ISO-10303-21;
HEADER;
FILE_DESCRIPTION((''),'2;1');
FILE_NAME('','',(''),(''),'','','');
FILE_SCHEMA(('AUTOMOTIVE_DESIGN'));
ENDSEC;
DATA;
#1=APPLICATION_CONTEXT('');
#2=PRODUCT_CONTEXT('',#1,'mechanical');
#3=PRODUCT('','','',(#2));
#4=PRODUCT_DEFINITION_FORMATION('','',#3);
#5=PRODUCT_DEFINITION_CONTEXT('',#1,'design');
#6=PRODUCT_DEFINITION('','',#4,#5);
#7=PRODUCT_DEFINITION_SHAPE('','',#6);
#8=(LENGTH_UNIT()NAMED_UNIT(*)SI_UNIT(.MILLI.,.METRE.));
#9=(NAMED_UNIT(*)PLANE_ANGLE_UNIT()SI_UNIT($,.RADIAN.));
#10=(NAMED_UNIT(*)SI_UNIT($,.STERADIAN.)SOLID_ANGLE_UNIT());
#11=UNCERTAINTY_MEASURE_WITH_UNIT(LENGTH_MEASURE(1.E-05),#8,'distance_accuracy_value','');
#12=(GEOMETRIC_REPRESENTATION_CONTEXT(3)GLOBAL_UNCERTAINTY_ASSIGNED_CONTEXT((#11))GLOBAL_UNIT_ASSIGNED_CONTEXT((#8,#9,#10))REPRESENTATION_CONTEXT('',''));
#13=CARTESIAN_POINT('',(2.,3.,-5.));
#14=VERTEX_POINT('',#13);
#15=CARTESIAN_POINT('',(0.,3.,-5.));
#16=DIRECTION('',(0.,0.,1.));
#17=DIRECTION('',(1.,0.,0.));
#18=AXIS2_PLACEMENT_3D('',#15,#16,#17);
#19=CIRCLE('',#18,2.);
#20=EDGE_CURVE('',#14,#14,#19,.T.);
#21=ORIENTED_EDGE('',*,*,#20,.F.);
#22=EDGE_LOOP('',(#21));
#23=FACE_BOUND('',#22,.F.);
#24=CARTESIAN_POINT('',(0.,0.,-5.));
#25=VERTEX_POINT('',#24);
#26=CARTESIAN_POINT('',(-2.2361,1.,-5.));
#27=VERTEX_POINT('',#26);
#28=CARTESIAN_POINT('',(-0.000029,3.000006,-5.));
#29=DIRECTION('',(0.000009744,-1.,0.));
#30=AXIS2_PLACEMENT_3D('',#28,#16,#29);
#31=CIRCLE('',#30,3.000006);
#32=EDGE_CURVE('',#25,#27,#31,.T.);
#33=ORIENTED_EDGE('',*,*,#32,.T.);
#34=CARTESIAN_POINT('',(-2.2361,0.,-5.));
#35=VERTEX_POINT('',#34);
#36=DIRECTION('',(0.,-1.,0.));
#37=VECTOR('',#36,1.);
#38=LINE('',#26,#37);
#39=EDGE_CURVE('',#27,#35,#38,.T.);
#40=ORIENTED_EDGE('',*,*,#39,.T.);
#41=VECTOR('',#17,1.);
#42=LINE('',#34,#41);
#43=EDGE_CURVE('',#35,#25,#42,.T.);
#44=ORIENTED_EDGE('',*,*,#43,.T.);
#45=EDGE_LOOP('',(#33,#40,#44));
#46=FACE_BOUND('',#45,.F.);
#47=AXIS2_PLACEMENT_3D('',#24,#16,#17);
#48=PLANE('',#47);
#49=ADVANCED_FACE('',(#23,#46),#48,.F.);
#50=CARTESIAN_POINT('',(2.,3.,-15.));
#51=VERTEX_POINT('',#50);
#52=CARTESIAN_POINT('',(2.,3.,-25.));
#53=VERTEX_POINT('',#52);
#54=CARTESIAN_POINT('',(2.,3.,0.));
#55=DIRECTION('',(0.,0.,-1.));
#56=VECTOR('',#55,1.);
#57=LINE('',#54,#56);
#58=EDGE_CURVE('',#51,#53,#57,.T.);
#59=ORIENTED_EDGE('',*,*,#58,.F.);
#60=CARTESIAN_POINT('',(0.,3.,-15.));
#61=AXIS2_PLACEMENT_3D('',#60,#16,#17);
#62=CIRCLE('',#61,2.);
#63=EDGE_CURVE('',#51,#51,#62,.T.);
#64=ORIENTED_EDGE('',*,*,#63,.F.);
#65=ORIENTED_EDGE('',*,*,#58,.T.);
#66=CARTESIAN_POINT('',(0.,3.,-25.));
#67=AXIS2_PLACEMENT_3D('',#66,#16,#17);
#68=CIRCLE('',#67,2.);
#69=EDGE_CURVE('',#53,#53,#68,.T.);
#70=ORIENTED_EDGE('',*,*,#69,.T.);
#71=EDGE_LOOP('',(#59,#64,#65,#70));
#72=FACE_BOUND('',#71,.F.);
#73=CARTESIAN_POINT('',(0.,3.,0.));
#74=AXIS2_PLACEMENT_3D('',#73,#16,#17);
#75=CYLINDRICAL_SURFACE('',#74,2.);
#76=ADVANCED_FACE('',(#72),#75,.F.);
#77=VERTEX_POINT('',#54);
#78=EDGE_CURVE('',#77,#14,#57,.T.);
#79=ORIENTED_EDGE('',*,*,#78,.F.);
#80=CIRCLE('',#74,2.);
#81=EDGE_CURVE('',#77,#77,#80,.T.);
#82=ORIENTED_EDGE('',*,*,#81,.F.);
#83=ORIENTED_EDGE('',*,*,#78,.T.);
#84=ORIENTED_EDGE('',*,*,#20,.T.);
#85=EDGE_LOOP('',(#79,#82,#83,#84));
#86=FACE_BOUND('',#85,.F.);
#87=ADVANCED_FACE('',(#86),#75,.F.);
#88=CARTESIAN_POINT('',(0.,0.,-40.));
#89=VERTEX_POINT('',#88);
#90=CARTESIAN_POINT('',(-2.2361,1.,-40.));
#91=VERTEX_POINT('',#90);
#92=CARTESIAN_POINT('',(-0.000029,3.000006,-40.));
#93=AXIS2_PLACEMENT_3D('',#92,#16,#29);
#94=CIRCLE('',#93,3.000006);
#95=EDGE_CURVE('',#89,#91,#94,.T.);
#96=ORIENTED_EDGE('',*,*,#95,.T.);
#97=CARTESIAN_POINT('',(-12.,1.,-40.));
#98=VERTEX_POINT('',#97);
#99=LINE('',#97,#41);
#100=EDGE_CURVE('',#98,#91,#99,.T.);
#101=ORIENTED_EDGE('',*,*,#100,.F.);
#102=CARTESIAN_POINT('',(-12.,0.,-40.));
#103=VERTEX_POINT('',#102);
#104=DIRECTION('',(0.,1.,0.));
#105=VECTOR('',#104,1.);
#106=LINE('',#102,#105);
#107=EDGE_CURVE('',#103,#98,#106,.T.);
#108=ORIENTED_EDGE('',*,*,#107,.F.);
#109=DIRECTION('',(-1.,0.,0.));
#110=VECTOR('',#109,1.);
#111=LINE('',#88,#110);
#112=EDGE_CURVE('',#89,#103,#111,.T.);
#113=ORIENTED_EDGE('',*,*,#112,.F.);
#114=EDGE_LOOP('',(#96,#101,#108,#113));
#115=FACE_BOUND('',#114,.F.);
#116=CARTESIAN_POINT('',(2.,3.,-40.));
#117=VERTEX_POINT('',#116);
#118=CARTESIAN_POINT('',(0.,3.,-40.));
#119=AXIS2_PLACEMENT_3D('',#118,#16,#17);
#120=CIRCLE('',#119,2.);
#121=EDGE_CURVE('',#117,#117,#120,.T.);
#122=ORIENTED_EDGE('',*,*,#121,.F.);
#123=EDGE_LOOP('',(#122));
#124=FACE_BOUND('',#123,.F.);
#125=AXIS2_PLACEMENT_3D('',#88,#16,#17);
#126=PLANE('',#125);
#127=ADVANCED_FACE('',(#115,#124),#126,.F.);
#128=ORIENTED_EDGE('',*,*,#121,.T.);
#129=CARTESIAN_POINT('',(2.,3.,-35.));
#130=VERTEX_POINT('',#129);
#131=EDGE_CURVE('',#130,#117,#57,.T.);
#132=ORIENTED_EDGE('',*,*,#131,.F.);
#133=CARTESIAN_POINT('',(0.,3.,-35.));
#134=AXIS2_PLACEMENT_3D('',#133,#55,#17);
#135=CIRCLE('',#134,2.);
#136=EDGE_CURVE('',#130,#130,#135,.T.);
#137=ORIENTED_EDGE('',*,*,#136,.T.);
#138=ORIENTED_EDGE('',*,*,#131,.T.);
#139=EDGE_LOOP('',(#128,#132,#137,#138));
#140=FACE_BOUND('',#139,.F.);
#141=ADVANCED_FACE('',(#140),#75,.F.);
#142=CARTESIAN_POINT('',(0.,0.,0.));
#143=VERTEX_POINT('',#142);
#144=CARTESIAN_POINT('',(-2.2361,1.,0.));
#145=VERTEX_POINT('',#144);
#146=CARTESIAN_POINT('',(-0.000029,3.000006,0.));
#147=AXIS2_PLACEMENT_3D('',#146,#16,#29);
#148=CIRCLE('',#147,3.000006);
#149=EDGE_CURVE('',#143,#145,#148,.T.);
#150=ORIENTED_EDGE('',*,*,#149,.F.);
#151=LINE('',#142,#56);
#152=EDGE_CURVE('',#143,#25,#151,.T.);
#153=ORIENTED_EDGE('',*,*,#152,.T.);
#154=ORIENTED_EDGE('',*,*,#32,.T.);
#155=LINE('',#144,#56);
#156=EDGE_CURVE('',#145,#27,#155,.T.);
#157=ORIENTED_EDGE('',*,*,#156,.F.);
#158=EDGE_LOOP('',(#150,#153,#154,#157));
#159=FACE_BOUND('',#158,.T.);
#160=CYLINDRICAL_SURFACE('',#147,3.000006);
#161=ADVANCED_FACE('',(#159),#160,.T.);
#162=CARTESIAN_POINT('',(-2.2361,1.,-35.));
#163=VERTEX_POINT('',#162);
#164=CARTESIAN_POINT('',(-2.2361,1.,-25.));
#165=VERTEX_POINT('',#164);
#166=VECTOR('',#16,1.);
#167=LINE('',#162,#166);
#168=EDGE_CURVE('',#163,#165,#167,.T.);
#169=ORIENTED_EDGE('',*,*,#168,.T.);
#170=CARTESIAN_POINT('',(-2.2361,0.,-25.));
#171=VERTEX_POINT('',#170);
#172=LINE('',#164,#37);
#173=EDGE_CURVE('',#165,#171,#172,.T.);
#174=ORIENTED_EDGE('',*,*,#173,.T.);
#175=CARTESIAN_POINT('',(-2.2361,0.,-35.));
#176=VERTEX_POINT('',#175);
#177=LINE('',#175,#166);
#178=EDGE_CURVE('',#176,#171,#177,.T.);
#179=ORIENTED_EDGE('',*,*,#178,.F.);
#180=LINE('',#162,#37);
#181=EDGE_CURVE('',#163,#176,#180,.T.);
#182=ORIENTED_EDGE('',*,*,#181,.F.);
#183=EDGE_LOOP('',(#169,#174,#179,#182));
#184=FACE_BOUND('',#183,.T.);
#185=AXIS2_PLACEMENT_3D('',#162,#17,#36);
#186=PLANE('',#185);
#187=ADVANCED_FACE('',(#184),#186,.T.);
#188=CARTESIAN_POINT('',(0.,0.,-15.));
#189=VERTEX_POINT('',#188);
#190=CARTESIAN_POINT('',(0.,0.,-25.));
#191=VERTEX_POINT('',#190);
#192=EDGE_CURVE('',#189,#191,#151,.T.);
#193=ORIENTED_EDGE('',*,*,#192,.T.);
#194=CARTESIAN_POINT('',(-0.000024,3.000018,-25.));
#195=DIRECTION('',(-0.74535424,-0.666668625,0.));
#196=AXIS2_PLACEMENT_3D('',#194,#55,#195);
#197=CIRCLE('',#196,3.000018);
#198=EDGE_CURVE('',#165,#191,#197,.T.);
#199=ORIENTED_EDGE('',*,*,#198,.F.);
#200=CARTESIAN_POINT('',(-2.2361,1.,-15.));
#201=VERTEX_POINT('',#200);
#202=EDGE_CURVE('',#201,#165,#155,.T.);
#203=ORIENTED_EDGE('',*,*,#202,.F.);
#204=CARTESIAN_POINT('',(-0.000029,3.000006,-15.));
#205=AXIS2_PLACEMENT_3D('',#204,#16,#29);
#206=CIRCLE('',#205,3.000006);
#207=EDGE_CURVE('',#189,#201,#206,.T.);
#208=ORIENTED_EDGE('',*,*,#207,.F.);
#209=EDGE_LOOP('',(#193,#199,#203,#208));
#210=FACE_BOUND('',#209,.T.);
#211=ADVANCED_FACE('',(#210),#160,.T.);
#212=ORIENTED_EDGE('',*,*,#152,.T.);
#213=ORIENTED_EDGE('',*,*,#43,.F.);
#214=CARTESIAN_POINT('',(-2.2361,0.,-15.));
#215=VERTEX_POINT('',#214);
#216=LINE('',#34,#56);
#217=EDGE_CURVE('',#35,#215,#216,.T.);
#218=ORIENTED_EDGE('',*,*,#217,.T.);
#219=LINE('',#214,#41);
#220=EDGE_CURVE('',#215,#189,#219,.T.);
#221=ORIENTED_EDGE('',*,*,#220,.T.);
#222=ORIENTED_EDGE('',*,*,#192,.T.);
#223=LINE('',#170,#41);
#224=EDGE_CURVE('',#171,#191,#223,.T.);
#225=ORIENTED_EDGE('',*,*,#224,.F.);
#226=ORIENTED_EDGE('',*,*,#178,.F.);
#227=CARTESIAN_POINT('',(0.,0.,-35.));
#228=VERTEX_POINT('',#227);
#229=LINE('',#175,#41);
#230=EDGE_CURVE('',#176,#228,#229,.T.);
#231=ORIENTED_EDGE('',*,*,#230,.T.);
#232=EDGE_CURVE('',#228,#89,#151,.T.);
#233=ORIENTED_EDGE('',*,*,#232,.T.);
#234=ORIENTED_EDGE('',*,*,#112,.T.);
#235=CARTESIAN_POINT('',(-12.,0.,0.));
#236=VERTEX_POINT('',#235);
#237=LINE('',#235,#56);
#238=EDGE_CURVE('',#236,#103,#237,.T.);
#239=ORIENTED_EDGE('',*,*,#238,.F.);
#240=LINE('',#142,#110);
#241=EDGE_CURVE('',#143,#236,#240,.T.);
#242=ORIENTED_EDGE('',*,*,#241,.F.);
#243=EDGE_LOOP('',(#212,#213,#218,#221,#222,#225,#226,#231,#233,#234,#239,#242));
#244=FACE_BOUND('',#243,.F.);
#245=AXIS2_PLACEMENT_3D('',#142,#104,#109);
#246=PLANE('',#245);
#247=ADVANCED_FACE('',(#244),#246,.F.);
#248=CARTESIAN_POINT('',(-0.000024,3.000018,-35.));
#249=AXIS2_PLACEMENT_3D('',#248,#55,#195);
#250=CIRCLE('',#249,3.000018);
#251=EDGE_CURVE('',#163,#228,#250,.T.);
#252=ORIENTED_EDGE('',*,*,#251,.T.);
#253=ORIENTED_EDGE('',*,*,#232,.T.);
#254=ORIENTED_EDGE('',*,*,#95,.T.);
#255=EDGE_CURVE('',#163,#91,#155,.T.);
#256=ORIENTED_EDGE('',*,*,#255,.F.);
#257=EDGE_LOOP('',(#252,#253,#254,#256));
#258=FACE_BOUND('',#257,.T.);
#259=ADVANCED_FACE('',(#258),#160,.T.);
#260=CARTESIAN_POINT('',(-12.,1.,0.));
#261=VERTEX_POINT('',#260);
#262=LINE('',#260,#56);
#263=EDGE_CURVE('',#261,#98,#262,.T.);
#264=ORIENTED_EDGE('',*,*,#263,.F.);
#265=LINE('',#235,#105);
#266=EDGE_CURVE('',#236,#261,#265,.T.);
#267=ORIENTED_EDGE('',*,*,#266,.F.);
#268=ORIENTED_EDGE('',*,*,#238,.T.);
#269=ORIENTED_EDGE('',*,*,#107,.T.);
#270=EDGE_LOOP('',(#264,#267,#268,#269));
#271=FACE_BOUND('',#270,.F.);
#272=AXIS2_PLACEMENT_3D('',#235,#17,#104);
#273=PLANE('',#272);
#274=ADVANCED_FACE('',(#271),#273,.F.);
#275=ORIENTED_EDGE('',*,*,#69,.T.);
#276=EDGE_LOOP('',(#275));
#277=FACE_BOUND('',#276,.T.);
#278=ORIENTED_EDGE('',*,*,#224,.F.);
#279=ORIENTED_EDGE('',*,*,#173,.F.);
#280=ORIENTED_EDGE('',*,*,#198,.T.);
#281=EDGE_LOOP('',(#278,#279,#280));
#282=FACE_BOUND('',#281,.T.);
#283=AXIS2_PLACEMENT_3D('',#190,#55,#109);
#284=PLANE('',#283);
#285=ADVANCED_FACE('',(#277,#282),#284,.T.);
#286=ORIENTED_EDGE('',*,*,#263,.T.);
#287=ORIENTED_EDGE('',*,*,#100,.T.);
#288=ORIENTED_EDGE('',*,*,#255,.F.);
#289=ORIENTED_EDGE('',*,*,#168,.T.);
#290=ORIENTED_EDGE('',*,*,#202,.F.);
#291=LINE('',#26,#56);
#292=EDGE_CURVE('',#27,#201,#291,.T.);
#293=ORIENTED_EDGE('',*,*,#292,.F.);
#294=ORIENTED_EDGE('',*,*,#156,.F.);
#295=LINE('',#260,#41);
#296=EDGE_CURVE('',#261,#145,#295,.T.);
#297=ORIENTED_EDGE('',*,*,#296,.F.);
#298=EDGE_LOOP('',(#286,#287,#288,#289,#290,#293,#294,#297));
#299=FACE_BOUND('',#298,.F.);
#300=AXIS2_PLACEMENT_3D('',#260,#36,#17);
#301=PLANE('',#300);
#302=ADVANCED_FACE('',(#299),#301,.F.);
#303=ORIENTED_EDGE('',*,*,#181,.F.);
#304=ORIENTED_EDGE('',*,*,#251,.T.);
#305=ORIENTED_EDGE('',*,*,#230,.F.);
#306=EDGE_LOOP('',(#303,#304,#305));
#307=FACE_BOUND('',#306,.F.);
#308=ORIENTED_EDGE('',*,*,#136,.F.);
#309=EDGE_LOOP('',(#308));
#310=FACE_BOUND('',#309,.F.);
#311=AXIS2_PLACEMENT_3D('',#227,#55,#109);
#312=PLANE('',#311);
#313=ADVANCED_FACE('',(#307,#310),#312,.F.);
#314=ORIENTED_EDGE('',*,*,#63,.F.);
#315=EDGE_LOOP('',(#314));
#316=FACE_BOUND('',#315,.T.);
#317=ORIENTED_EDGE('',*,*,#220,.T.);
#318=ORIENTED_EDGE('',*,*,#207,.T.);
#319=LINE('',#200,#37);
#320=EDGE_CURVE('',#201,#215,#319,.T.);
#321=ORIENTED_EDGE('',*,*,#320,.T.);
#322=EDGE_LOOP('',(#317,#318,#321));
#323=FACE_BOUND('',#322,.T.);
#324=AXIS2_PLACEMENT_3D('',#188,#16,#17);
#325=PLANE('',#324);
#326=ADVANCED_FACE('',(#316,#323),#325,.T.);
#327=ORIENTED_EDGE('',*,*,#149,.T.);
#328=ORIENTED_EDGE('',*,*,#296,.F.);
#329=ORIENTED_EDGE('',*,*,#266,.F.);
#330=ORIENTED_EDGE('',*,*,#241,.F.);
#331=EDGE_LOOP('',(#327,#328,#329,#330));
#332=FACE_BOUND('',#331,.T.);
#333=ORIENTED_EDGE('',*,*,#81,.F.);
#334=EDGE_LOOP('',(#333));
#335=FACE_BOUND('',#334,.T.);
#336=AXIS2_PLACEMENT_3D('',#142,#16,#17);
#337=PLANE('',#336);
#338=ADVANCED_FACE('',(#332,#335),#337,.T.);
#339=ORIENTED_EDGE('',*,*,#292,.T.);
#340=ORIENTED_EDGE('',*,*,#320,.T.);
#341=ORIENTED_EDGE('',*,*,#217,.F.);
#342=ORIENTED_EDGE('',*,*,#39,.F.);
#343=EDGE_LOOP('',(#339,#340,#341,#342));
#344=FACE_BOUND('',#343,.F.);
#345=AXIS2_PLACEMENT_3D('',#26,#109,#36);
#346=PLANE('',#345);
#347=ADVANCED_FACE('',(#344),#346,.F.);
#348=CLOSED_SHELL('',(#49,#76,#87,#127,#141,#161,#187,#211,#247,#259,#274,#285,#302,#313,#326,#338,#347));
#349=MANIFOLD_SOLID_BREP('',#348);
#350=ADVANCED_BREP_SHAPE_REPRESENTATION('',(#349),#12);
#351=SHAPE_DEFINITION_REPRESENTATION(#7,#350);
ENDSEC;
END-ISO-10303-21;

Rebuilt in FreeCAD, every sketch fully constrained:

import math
import FreeCAD as App
import Part
import Sketcher

V = App.Vector

doc = App.newDocument("Part")
body = doc.addObject("PartDesign::Body", "Body")

# Sketch on XY plane
sketch1 = body.newObject("Sketcher::SketchObject", "Sketch")
sketch1.AttachmentSupport = (doc.getObject("XY_Plane"), [""])
sketch1.MapMode = "FlatFace"
sketch1.addGeometry([
    Part.LineSegment(V(-12, 0, 0), V(0, 0, 0)),  # 0
    Part.ArcOfCircle(Part.Circle(V(0, 3, 0), V(0, 0, 1), 3), math.radians(-90), math.radians(222)),  # 1
    Part.LineSegment(V(-2.2, 1, 0), V(-12, 1, 0)),  # 2
    Part.LineSegment(V(-12, 1, 0), V(-12, 0, 0)),  # 3
    Part.Circle(V(0, 3, 0), V(0, 0, 1), 2),  # 4
], False)
sketch1.addConstraint([
    Sketcher.Constraint("Tangent", 0, 2, 1, 1),
    Sketcher.Constraint("Coincident", 1, 2, 2, 1),
    Sketcher.Constraint("Coincident", 2, 2, 3, 1),
    Sketcher.Constraint("Coincident", 3, 2, 0, 1),
    Sketcher.Constraint("Horizontal", 0),
    Sketcher.Constraint("Horizontal", 2),
    Sketcher.Constraint("Vertical", 3),
    Sketcher.Constraint("Coincident", 0, 2, -1, 1),
    Sketcher.Constraint("Coincident", 4, 3, 1, 3),
    Sketcher.Constraint("Diameter", 4, 4.0),
    Sketcher.Constraint("Radius", 1, 3.0),
    Sketcher.Constraint("DistanceX", 0, 1, 0, 2, 12.0),
    Sketcher.Constraint("DistanceY", 3, 2, 3, 1, 1.0),
])
pad1 = body.newObject("PartDesign::Pad", "Pad")
pad1.Profile = sketch1
pad1.Length = 40
pad1.Reversed = True

# Sketch on XY plane
sketch2 = body.newObject("Sketcher::SketchObject", "Sketch001")
sketch2.AttachmentSupport = (doc.getObject("XY_Plane"), [""])
sketch2.MapMode = "FlatFace"
sketch2.AttachmentOffset = App.Placement(V(0, 0, -5), App.Rotation())
sketch2.addGeometry([
    Part.LineSegment(V(-2.2, 0, 0), V(0, 0, 0)),
    Part.ArcOfCircle(Part.Circle(V(0, 3, 0), V(0, 0, 1), 3), math.radians(-90), math.radians(222)),
    Part.LineSegment(V(-2.2, 1, 0), V(-2.2, 0, 0)),
    Part.Circle(V(0, 3, 0), V(0, 0, 1), 2),
], False)
sketch2.addConstraint([
    Sketcher.Constraint("Tangent", 0, 2, 1, 1),
    Sketcher.Constraint("Coincident", 1, 2, 2, 1),
    Sketcher.Constraint("Coincident", 2, 2, 0, 1),
    Sketcher.Constraint("Horizontal", 0),
    Sketcher.Constraint("Vertical", 2),
    Sketcher.Constraint("Coincident", 0, 2, -1, 1),
    Sketcher.Constraint("Coincident", 3, 3, 1, 3),
    Sketcher.Constraint("Diameter", 3, 4.0),
    Sketcher.Constraint("Radius", 1, 3.0),
    Sketcher.Constraint("DistanceY", 2, 2, 2, 1, 1.0),
])
pocket1 = body.newObject("PartDesign::Pocket", "Pocket")
pocket1.Profile = sketch2
pocket1.Length = 10

# Sketch on XY plane
sketch3 = body.newObject("Sketcher::SketchObject", "Sketch002")
sketch3.AttachmentSupport = (doc.getObject("XY_Plane"), [""])
sketch3.MapMode = "FlatFace"
sketch3.AttachmentOffset = App.Placement(V(0, 0, -35), App.Rotation())
sketch3.addGeometry([
    Part.LineSegment(V(-2.2, 0, 0), V(-2.2, 1, 0)),
    Part.ArcOfCircle(Part.Circle(V(0, 3, 0), V(0, 0, 1), 3), math.radians(-90), math.radians(222)),
    Part.LineSegment(V(0, 0, 0), V(-2.2, 0, 0)),
    Part.Circle(V(0, 3, 0), V(0, 0, 1), 2),
], False)
sketch3.addConstraint([
    Sketcher.Constraint("Coincident", 0, 2, 1, 2),
    Sketcher.Constraint("Tangent", 1, 1, 2, 1),
    Sketcher.Constraint("Coincident", 2, 2, 0, 1),
    Sketcher.Constraint("Vertical", 0),
    Sketcher.Constraint("Horizontal", 2),
    Sketcher.Constraint("Coincident", 1, 1, -1, 1),
    Sketcher.Constraint("Coincident", 3, 3, 1, 3),
    Sketcher.Constraint("Diameter", 3, 4.0),
    Sketcher.Constraint("Radius", 1, 3.0),
    Sketcher.Constraint("DistanceY", 0, 1, 0, 2, 1.0),
])
pocket2 = body.newObject("PartDesign::Pocket", "Pocket001")
pocket2.Profile = sketch3
pocket2.Length = 10
pocket2.Reversed = True

doc.recompute()
